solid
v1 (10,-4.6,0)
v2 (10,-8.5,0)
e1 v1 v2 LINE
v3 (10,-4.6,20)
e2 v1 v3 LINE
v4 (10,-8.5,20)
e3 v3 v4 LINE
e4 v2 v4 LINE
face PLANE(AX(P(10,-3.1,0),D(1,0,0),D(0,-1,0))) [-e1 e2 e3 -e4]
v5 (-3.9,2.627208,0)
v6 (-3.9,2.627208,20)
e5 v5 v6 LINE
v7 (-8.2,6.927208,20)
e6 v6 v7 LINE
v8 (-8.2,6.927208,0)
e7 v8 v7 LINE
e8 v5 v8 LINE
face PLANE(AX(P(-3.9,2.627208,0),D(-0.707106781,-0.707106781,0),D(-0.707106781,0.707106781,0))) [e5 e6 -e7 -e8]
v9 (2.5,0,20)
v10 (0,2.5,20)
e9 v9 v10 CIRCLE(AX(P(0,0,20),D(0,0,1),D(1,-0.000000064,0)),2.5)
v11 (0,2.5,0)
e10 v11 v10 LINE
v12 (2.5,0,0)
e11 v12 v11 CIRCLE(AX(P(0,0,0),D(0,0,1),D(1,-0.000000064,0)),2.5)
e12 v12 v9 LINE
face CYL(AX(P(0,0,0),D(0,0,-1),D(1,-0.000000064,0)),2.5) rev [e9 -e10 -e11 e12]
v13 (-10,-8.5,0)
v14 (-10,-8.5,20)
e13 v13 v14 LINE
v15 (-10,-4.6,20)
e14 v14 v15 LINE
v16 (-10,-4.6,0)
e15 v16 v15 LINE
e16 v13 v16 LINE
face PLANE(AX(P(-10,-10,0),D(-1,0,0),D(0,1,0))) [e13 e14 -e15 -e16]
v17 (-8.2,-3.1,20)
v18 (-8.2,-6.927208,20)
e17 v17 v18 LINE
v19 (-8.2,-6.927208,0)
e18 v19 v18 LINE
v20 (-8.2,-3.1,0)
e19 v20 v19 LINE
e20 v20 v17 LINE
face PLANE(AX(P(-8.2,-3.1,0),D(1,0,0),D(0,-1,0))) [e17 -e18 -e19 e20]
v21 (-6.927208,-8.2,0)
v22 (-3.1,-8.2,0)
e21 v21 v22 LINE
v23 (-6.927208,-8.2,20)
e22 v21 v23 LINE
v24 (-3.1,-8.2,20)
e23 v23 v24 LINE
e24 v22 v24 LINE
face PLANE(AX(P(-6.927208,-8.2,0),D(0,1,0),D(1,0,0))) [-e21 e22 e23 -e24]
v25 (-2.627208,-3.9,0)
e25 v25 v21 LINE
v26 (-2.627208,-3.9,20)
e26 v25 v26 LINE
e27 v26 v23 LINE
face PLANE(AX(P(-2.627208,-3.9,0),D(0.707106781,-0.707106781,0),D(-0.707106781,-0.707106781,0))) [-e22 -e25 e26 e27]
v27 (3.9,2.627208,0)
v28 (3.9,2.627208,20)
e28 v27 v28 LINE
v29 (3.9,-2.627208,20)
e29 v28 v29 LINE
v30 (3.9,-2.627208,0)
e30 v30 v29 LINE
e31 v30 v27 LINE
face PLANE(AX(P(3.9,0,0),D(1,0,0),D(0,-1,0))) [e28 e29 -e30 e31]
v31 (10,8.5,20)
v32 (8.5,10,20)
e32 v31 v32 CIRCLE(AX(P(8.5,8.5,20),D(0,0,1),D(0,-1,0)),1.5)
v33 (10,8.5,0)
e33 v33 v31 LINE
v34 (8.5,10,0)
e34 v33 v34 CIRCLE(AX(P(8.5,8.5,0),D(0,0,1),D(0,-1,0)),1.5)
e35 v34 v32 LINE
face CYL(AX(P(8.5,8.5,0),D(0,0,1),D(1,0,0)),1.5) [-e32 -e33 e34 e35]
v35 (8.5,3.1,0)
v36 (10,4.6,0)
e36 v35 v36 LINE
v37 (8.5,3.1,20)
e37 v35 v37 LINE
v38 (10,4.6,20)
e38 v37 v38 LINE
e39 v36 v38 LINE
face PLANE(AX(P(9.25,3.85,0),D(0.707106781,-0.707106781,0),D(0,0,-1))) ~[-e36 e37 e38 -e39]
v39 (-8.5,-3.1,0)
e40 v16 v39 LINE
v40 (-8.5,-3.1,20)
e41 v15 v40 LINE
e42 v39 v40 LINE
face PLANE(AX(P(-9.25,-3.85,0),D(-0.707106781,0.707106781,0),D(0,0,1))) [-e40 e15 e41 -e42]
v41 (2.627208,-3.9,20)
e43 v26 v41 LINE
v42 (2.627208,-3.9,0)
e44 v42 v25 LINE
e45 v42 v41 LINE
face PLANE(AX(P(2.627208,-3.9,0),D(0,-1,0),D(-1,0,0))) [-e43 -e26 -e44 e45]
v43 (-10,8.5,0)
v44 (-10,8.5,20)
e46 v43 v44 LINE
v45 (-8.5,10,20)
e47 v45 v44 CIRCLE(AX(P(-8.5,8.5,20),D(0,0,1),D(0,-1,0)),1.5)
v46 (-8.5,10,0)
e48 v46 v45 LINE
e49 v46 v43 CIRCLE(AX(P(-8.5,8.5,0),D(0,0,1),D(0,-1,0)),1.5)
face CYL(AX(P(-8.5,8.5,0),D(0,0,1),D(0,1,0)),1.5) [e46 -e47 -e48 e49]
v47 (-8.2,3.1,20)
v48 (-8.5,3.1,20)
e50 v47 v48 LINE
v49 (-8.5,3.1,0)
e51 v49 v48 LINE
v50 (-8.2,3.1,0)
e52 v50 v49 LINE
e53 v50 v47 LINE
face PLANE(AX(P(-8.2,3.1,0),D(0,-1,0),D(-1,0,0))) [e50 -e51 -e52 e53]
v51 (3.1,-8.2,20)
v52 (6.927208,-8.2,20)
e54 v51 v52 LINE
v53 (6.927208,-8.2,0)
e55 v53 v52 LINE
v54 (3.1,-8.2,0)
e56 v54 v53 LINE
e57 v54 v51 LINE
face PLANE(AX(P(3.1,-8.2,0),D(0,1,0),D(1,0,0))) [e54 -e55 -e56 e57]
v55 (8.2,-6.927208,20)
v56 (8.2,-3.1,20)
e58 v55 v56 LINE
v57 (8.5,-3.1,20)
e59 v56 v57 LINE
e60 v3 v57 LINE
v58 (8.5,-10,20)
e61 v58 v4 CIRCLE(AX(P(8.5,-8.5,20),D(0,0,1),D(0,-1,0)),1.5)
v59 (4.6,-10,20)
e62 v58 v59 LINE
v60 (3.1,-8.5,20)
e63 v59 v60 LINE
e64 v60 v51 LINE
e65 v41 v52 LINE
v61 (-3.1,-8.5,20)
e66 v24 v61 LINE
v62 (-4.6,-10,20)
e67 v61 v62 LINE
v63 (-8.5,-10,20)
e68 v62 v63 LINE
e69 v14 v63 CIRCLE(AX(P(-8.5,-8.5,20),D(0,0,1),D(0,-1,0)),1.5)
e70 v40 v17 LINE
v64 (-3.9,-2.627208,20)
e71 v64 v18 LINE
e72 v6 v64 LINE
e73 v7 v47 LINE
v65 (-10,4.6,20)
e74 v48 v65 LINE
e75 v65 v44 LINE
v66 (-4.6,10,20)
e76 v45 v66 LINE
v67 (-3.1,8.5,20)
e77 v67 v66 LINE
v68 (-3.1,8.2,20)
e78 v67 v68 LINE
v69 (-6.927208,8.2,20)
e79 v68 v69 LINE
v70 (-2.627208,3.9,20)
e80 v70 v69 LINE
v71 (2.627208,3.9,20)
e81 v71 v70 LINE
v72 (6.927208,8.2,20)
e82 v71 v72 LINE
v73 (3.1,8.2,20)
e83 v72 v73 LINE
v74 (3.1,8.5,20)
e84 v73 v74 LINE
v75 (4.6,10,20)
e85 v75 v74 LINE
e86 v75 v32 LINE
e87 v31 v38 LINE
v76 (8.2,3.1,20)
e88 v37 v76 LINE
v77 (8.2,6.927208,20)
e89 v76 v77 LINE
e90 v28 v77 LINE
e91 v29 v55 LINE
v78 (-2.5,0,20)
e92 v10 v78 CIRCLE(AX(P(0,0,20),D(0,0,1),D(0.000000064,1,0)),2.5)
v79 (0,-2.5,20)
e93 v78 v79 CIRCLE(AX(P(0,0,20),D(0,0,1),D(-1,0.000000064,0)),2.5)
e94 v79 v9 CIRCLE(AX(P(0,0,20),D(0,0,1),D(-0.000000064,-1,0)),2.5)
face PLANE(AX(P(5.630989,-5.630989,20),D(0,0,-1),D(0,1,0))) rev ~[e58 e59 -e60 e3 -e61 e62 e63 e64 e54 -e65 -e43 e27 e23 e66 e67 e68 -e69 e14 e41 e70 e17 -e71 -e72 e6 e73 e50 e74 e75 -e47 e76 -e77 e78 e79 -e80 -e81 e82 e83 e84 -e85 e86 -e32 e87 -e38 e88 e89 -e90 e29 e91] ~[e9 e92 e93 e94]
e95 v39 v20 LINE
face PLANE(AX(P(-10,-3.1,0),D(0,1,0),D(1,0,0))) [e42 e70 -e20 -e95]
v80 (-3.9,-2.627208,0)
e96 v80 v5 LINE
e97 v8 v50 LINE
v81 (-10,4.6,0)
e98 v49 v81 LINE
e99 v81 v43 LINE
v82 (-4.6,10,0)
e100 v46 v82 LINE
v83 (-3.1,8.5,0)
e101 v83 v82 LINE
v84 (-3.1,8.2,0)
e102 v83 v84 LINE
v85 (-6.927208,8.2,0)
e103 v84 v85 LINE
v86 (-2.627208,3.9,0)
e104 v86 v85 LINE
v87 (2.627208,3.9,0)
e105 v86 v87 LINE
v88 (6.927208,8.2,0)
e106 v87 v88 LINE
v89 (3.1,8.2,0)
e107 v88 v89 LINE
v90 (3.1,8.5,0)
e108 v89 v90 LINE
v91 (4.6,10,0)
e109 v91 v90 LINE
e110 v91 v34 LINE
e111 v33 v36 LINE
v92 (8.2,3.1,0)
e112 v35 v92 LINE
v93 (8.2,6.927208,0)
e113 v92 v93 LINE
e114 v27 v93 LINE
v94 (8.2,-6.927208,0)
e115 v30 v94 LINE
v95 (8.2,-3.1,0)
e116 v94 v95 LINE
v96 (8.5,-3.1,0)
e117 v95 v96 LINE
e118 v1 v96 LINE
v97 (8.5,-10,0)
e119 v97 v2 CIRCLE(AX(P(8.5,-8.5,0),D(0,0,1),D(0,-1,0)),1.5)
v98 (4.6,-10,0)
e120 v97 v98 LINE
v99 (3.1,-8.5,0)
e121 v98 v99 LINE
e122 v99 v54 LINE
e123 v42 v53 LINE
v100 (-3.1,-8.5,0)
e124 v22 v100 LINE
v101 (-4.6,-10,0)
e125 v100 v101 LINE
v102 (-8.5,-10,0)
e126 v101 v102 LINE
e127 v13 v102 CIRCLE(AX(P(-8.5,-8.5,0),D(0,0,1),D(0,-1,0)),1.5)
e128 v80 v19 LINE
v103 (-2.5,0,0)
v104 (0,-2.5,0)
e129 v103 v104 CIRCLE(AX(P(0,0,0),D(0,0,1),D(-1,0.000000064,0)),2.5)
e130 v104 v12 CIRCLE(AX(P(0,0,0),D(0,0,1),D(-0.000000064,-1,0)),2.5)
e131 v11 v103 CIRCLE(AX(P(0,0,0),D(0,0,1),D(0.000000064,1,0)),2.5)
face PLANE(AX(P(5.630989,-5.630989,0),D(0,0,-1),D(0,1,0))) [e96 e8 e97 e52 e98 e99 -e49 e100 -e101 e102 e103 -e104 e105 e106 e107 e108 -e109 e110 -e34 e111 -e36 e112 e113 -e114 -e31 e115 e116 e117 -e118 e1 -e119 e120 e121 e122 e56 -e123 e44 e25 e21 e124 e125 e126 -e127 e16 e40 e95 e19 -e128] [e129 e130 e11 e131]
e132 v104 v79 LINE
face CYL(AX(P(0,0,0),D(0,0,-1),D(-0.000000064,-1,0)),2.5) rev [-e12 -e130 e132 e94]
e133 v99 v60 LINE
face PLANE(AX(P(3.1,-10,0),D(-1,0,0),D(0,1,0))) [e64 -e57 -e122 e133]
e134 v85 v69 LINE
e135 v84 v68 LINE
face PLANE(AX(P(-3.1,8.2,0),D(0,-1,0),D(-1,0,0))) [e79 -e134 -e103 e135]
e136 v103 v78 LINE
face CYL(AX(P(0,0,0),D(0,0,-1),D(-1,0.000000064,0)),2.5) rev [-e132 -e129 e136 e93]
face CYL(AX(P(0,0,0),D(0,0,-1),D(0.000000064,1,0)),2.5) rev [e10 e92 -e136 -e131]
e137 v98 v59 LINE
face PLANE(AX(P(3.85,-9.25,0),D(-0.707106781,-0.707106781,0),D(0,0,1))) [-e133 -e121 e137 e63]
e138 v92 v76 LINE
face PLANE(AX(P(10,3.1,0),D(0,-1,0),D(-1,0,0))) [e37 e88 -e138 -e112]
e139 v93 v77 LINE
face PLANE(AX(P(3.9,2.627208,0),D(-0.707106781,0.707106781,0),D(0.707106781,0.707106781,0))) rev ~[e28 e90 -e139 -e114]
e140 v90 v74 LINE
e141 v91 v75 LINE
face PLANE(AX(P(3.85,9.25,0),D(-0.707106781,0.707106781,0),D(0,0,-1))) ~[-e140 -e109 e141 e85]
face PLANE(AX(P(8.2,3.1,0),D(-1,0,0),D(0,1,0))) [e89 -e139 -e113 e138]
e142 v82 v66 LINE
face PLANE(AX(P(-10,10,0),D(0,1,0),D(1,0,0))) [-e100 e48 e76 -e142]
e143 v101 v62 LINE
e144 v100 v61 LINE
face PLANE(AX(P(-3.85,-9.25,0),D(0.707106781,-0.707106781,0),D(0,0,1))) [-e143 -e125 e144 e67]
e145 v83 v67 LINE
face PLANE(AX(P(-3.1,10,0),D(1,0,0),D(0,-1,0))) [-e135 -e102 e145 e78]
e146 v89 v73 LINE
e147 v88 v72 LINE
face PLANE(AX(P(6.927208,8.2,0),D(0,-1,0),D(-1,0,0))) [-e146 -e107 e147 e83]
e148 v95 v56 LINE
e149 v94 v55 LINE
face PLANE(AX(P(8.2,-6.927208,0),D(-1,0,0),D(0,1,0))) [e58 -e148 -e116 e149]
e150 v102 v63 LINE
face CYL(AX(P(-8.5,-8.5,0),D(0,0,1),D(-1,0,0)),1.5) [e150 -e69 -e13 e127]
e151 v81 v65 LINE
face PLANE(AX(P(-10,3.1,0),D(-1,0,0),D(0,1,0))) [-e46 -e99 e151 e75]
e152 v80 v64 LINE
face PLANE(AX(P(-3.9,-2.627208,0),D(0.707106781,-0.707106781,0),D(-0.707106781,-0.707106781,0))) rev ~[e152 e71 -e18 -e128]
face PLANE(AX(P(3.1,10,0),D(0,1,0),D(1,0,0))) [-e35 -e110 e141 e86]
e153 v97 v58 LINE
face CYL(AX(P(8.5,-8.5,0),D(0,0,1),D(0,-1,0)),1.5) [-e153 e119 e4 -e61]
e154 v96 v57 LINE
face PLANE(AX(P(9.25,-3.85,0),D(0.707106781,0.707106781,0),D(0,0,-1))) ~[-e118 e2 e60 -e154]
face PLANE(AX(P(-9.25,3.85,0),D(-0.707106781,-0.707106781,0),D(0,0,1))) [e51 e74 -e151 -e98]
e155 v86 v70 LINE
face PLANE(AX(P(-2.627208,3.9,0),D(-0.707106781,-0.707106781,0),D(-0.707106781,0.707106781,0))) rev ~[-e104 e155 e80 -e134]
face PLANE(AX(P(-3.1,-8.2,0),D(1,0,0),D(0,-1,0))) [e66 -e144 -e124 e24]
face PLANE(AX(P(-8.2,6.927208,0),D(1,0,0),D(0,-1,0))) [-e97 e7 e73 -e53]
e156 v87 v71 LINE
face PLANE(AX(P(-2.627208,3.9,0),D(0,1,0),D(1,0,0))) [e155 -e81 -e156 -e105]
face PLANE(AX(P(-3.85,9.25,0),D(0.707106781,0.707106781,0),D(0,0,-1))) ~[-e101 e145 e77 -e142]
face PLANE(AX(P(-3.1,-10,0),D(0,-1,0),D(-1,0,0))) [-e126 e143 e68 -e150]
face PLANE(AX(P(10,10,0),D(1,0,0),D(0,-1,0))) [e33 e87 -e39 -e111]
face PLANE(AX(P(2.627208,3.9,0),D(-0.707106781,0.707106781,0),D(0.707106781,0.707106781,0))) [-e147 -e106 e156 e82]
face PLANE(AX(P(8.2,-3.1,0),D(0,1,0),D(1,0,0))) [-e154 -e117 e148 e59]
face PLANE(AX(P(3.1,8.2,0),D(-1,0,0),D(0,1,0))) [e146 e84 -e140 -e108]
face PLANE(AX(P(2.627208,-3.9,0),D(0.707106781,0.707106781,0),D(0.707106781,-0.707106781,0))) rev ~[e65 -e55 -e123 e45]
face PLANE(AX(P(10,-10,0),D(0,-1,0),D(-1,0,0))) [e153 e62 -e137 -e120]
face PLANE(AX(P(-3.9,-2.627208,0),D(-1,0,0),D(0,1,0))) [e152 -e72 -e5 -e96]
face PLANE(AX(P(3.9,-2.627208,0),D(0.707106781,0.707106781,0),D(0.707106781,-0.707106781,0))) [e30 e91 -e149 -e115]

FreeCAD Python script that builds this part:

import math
import FreeCAD as App
import Part
import Sketcher

V = App.Vector
Q = App.Units.Quantity


def edges_at(feature, points):
    """Names of the edges that pass closest to the given points."""
    edges = feature.Shape.Edges
    near = lambda p: min(range(len(edges)), key=lambda i: edges[i].distToShape(Part.Vertex(*p))[0])
    return sorted({f"Edge{near(p) + 1}" for p in points})

doc = App.newDocument("Part")
params = doc.addObject("Spreadsheet::Sheet", "Params")
for row, (alias, value) in enumerate([
    ("sketch1_radius", "2.5 mm"),
    ("sketch1_width", "1.4 mm"),
    ("sketch1_width2", "1.8 mm"),
    ("sketch1_width3", "6.9 mm"),
    ("pad1_length", "20 mm"),
    ("fillet_radius", "1.5 mm"),
    ("chamfer_size", "1.5 mm"),
], start=1):
    params.set(f"A{row}", alias)
    params.set(f"B{row}", "=" + value)
    params.setAlias(f"B{row}", alias)

body = doc.addObject("PartDesign::Body", "Body")

# Sketch on XZ plane
sketch1 = doc.addObject("Sketcher::SketchObject", "Sketch")
body.addObject(sketch1)
sketch1.AttachmentSupport = (doc.XZ_Plane, [""])
sketch1.MapMode = "FlatFace"
sketch1.addGeometry(Part.LineSegment(V(2.6, 3.9, 0), V(0, 3.9, 0)), False)
sketch1.addGeometry(Part.LineSegment(V(0, 3.9, 0), V(0, 2.5, 0)), False)
sketch1.addGeometry(Part.ArcOfCircle(Part.Circle(V(0, 0, 0), V(0, 0, 1), 2.5), math.radians(0), math.radians(90)), False)
sketch1.addGeometry(Part.LineSegment(V(2.5, 0, 0), V(3.9, 0, 0)), False)
sketch1.addGeometry(Part.LineSegment(V(3.9, 0, 0), V(3.9, 2.6, 0)), False)
sketch1.addGeometry(Part.LineSegment(V(3.9, 2.6, 0), V(8.2, 6.9, 0)), False)
sketch1.addGeometry(Part.LineSegment(V(8.2, 6.9, 0), V(8.2, 3.1, 0)), False)
sketch1.addGeometry(Part.LineSegment(V(8.2, 3.1, 0), V(10, 3.1, 0)), False)
sketch1.addGeometry(Part.LineSegment(V(10, 3.1, 0), V(10, 10, 0)), False)
sketch1.addGeometry(Part.LineSegment(V(10, 10, 0), V(3.1, 10, 0)), False)
sketch1.addGeometry(Part.LineSegment(V(3.1, 10, 0), V(3.1, 8.2, 0)), False)
sketch1.addGeometry(Part.LineSegment(V(3.1, 8.2, 0), V(6.9, 8.2, 0)), False)
sketch1.addGeometry(Part.LineSegment(V(6.9, 8.2, 0), V(2.6, 3.9, 0)), False)
sketch1.addConstraint(Sketcher.Constraint("Coincident", 0, 2, 1, 1))
sketch1.addConstraint(Sketcher.Constraint("Coincident", 1, 2, 2, 2))
sketch1.addConstraint(Sketcher.Constraint("Coincident", 2, 1, 3, 1))
sketch1.addConstraint(Sketcher.Constraint("Coincident", 3, 2, 4, 1))
sketch1.addConstraint(Sketcher.Constraint("Coincident", 4, 2, 5, 1))
sketch1.addConstraint(Sketcher.Constraint("Coincident", 5, 2, 6, 1))
sketch1.addConstraint(Sketcher.Constraint("Coincident", 6, 2, 7, 1))
sketch1.addConstraint(Sketcher.Constraint("Coincident", 7, 2, 8, 1))
sketch1.addConstraint(Sketcher.Constraint("Coincident", 8, 2, 9, 1))
sketch1.addConstraint(Sketcher.Constraint("Coincident", 9, 2, 10, 1))
sketch1.addConstraint(Sketcher.Constraint("Coincident", 10, 2, 11, 1))
sketch1.addConstraint(Sketcher.Constraint("Coincident", 11, 2, 12, 1))
sketch1.addConstraint(Sketcher.Constraint("Coincident", 12, 2, 0, 1))
sketch1.addConstraint(Sketcher.Constraint("Horizontal", 0))
sketch1.addConstraint(Sketcher.Constraint("Vertical", 1))
sketch1.addConstraint(Sketcher.Constraint("Horizontal", 3))
sketch1.addConstraint(Sketcher.Constraint("Vertical", 4))
sketch1.addConstraint(Sketcher.Constraint("Vertical", 6))
sketch1.addConstraint(Sketcher.Constraint("Horizontal", 7))
sketch1.addConstraint(Sketcher.Constraint("Vertical", 8))
sketch1.addConstraint(Sketcher.Constraint("Horizontal", 9))
sketch1.addConstraint(Sketcher.Constraint("Vertical", 10))
sketch1.addConstraint(Sketcher.Constraint("Horizontal", 11))
sketch1.addConstraint(Sketcher.Constraint("Coincident", 2, 3, -1, 1))
sketch1.addConstraint(Sketcher.Constraint("PointOnObject", 0, 2, -2))
sketch1.addConstraint(Sketcher.Constraint("PointOnObject", 2, 1, -1))
sketch1.addConstraint(Sketcher.Constraint("Parallel", 5, 12))
sketch1.addConstraint(Sketcher.Constraint("Equal", 3, 1))
sketch1.addConstraint(Sketcher.Constraint("Equal", 0, 4))
sketch1.addConstraint(Sketcher.Constraint("Equal", 11, 6))
sketch1.addConstraint(Sketcher.Constraint("Equal", 9, 8))
sketch1.addConstraint(Sketcher.Constraint("Equal", 7, 10))
sketch1.addConstraint(Sketcher.Constraint("Radius", 2, 2.5))
sketch1.addConstraint(Sketcher.Constraint("Angle", 5, Q("45 deg")))
sketch1.addConstraint(Sketcher.Constraint("DistanceX", 3, 1, 3, 2, 1.4))
sketch1.addConstraint(Sketcher.Constraint("DistanceX", 7, 1, 7, 2, 1.8))
sketch1.addConstraint(Sketcher.Constraint("DistanceX", 9, 2, 9, 1, 6.9))
sketch1.addConstraint(Sketcher.Constraint("DistanceX", -1, 1, 7, 2, 10.0))
sketch1.addConstraint(Sketcher.Constraint("DistanceX", 0, 2, 0, 1, 2.627208))
sketch1.setExpression("Constraints[32]", "Params.sketch1_radius")
sketch1.setExpression("Constraints[34]", "Params.sketch1_width")
sketch1.setExpression("Constraints[35]", "Params.sketch1_width2")
sketch1.setExpression("Constraints[36]", "Params.sketch1_width3")
pad1 = doc.addObject("PartDesign::Pad", "Pad")
body.addObject(pad1)
pad1.Profile = sketch1
pad1.setExpression("Length", "Params.pad1_length")
doc.recompute()

polarpattern = doc.addObject("PartDesign::PolarPattern", "PolarPattern")
body.addObject(polarpattern)
polarpattern.Originals = [pad1]
polarpattern.Axis = (doc.Y_Axis, [""])
polarpattern.Angle = 360
polarpattern.Occurrences = 4
body.Tip = polarpattern
doc.recompute()

fillet = doc.addObject("PartDesign::Fillet", "Fillet")
body.addObject(fillet)
fillet.Base = (polarpattern, edges_at(polarpattern, [
    (-10, -10, 10),
    (10, -10, 10),
    (10, -10, -10),
    (-10, -10, -10),
]))
fillet.setExpression("Radius", "Params.fillet_radius")
doc.recompute()

chamfer = doc.addObject("PartDesign::Chamfer", "Chamfer")
body.addObject(chamfer)
chamfer.Base = (fillet, edges_at(fillet, [
    (3.1, -10, 10),
    (-3.1, -10, 10),
    (-10, -10, 3.1),
    (-10, -10, -3.1),
    (-3.1, -10, -10),
    (10, -10, -3.1),
    (3.1, -10, -10),
    (10, -10, 3.1),
]))
chamfer.setExpression("Size", "Params.chamfer_size")
body2 = doc.addObject("PartDesign::Body", "Body001")
doc.recompute()

body.Placement = App.Placement(V(0, 0, 0), App.Rotation(V(1, 0, 0), 270))
boolean = doc.addObject("PartDesign::Boolean", "Boolean")
body2.addObject(boolean)
boolean.Type = "Fuse"
boolean.addObjects([body])

doc.recompute()
